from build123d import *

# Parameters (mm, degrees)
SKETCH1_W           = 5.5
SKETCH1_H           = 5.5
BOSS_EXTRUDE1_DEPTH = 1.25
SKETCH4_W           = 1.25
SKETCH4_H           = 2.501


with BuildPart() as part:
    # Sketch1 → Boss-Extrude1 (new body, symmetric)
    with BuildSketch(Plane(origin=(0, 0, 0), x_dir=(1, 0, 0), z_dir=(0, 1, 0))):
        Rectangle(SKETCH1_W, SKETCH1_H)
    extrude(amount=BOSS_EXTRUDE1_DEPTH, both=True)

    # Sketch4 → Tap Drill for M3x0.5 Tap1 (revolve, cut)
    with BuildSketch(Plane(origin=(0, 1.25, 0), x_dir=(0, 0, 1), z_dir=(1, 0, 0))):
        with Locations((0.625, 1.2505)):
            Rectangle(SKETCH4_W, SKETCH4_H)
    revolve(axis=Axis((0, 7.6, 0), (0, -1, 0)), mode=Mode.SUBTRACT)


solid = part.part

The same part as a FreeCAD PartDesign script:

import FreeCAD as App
import Part
import Sketcher

V = App.Vector

doc = App.newDocument("Part")
params = doc.addObject("Spreadsheet::Sheet", "Params")
for row, (alias, value) in enumerate([
    ("sketch1_width", "5.5 mm"),
    ("pad1_length", "2.5 mm"),
    ("sketch2_height", "1.25 mm"),
    ("groove_angle", "360 deg"),
], start=1):
    params.set(f"A{row}", alias)
    params.set(f"B{row}", "=" + value)
    params.setAlias(f"B{row}", alias)

body = doc.addObject("PartDesign::Body", "Body")

sketch1 = body.newObject("Sketcher::SketchObject", "Sketch")
sketch1.AttachmentSupport = (doc.getObject("XZ_Plane"), [""])
sketch1.MapMode = "FlatFace"
sketch1.addGeometry([
    Part.LineSegment(V(-3, -3, 0), V(-3, 3, 0)),
    Part.LineSegment(V(-3, 3, 0), V(3, 3, 0)),
    Part.LineSegment(V(3, 3, 0), V(3, -3, 0)),
    Part.LineSegment(V(3, -3, 0), V(-3, -3, 0)),
], False)
sketch1.addConstraint([
    Sketcher.Constraint("Coincident", 0, 2, 1, 1),
    Sketcher.Constraint("Coincident", 1, 2, 2, 1),
    Sketcher.Constraint("Coincident", 2, 2, 3, 1),
    Sketcher.Constraint("Coincident", 3, 2, 0, 1),
    Sketcher.Constraint("Vertical", 0),
    Sketcher.Constraint("Horizontal", 1),
    Sketcher.Constraint("Vertical", 2),
    Sketcher.Constraint("Horizontal", 3),
    Sketcher.Constraint("Symmetric", 0, 2, 2, 2, -1, 1),
    Sketcher.Constraint("Equal", 3, 0),
    Sketcher.Constraint("DistanceX", 1, 1, 1, 2, 5.5),
])
sketch1.setExpression("Constraints[10]", "Params.sketch1_width")
pad1 = body.newObject("PartDesign::Pad", "Pad")
pad1.Profile = sketch1
pad1.setExpression("Length", "Params.pad1_length")
pad1.Midplane = True

sketch2 = body.newObject("Sketcher::SketchObject", "Sketch001")
sketch2.AttachmentSupport = (doc.getObject("YZ_Plane"), [""])
sketch2.MapMode = "FlatFace"
sketch2.addGeometry([
    Part.LineSegment(V(-1.3, 0, 0), V(1.2, 0, 0)),
    Part.LineSegment(V(1.2, 0, 0), V(1.2, 1.2, 0)),
    Part.LineSegment(V(1.2, 1.2, 0), V(-1.3, 1.2, 0)),
    Part.LineSegment(V(-1.3, 1.2, 0), V(-1.3, 0, 0)),
], False)
sketch2.addConstraint([
    Sketcher.Constraint("Coincident", 0, 2, 1, 1),
    Sketcher.Constraint("Coincident", 1, 2, 2, 1),
    Sketcher.Constraint("Coincident", 2, 2, 3, 1),
    Sketcher.Constraint("Coincident", 3, 2, 0, 1),
    Sketcher.Constraint("Horizontal", 0),
    Sketcher.Constraint("Vertical", 1),
    Sketcher.Constraint("Horizontal", 2),
    Sketcher.Constraint("Vertical", 3),
    Sketcher.Constraint("PointOnObject", 0, 2, -1),
    Sketcher.Constraint("DistanceY", 1, 1, 1, 2, 1.25),
    Sketcher.Constraint("DistanceX", 0, 1, 0, 2, 2.501),
    Sketcher.Constraint("DistanceX", -1, 1, 0, 2, 1.25),
])
sketch2.setExpression("Constraints[9]", "Params.sketch2_height")
groove = body.newObject("PartDesign::Groove", "Groove")
groove.Profile = sketch2
groove.ReferenceAxis = (sketch2, ["H_Axis"])
groove.setExpression("Angle", "Params.groove_angle")

doc.recompute()
